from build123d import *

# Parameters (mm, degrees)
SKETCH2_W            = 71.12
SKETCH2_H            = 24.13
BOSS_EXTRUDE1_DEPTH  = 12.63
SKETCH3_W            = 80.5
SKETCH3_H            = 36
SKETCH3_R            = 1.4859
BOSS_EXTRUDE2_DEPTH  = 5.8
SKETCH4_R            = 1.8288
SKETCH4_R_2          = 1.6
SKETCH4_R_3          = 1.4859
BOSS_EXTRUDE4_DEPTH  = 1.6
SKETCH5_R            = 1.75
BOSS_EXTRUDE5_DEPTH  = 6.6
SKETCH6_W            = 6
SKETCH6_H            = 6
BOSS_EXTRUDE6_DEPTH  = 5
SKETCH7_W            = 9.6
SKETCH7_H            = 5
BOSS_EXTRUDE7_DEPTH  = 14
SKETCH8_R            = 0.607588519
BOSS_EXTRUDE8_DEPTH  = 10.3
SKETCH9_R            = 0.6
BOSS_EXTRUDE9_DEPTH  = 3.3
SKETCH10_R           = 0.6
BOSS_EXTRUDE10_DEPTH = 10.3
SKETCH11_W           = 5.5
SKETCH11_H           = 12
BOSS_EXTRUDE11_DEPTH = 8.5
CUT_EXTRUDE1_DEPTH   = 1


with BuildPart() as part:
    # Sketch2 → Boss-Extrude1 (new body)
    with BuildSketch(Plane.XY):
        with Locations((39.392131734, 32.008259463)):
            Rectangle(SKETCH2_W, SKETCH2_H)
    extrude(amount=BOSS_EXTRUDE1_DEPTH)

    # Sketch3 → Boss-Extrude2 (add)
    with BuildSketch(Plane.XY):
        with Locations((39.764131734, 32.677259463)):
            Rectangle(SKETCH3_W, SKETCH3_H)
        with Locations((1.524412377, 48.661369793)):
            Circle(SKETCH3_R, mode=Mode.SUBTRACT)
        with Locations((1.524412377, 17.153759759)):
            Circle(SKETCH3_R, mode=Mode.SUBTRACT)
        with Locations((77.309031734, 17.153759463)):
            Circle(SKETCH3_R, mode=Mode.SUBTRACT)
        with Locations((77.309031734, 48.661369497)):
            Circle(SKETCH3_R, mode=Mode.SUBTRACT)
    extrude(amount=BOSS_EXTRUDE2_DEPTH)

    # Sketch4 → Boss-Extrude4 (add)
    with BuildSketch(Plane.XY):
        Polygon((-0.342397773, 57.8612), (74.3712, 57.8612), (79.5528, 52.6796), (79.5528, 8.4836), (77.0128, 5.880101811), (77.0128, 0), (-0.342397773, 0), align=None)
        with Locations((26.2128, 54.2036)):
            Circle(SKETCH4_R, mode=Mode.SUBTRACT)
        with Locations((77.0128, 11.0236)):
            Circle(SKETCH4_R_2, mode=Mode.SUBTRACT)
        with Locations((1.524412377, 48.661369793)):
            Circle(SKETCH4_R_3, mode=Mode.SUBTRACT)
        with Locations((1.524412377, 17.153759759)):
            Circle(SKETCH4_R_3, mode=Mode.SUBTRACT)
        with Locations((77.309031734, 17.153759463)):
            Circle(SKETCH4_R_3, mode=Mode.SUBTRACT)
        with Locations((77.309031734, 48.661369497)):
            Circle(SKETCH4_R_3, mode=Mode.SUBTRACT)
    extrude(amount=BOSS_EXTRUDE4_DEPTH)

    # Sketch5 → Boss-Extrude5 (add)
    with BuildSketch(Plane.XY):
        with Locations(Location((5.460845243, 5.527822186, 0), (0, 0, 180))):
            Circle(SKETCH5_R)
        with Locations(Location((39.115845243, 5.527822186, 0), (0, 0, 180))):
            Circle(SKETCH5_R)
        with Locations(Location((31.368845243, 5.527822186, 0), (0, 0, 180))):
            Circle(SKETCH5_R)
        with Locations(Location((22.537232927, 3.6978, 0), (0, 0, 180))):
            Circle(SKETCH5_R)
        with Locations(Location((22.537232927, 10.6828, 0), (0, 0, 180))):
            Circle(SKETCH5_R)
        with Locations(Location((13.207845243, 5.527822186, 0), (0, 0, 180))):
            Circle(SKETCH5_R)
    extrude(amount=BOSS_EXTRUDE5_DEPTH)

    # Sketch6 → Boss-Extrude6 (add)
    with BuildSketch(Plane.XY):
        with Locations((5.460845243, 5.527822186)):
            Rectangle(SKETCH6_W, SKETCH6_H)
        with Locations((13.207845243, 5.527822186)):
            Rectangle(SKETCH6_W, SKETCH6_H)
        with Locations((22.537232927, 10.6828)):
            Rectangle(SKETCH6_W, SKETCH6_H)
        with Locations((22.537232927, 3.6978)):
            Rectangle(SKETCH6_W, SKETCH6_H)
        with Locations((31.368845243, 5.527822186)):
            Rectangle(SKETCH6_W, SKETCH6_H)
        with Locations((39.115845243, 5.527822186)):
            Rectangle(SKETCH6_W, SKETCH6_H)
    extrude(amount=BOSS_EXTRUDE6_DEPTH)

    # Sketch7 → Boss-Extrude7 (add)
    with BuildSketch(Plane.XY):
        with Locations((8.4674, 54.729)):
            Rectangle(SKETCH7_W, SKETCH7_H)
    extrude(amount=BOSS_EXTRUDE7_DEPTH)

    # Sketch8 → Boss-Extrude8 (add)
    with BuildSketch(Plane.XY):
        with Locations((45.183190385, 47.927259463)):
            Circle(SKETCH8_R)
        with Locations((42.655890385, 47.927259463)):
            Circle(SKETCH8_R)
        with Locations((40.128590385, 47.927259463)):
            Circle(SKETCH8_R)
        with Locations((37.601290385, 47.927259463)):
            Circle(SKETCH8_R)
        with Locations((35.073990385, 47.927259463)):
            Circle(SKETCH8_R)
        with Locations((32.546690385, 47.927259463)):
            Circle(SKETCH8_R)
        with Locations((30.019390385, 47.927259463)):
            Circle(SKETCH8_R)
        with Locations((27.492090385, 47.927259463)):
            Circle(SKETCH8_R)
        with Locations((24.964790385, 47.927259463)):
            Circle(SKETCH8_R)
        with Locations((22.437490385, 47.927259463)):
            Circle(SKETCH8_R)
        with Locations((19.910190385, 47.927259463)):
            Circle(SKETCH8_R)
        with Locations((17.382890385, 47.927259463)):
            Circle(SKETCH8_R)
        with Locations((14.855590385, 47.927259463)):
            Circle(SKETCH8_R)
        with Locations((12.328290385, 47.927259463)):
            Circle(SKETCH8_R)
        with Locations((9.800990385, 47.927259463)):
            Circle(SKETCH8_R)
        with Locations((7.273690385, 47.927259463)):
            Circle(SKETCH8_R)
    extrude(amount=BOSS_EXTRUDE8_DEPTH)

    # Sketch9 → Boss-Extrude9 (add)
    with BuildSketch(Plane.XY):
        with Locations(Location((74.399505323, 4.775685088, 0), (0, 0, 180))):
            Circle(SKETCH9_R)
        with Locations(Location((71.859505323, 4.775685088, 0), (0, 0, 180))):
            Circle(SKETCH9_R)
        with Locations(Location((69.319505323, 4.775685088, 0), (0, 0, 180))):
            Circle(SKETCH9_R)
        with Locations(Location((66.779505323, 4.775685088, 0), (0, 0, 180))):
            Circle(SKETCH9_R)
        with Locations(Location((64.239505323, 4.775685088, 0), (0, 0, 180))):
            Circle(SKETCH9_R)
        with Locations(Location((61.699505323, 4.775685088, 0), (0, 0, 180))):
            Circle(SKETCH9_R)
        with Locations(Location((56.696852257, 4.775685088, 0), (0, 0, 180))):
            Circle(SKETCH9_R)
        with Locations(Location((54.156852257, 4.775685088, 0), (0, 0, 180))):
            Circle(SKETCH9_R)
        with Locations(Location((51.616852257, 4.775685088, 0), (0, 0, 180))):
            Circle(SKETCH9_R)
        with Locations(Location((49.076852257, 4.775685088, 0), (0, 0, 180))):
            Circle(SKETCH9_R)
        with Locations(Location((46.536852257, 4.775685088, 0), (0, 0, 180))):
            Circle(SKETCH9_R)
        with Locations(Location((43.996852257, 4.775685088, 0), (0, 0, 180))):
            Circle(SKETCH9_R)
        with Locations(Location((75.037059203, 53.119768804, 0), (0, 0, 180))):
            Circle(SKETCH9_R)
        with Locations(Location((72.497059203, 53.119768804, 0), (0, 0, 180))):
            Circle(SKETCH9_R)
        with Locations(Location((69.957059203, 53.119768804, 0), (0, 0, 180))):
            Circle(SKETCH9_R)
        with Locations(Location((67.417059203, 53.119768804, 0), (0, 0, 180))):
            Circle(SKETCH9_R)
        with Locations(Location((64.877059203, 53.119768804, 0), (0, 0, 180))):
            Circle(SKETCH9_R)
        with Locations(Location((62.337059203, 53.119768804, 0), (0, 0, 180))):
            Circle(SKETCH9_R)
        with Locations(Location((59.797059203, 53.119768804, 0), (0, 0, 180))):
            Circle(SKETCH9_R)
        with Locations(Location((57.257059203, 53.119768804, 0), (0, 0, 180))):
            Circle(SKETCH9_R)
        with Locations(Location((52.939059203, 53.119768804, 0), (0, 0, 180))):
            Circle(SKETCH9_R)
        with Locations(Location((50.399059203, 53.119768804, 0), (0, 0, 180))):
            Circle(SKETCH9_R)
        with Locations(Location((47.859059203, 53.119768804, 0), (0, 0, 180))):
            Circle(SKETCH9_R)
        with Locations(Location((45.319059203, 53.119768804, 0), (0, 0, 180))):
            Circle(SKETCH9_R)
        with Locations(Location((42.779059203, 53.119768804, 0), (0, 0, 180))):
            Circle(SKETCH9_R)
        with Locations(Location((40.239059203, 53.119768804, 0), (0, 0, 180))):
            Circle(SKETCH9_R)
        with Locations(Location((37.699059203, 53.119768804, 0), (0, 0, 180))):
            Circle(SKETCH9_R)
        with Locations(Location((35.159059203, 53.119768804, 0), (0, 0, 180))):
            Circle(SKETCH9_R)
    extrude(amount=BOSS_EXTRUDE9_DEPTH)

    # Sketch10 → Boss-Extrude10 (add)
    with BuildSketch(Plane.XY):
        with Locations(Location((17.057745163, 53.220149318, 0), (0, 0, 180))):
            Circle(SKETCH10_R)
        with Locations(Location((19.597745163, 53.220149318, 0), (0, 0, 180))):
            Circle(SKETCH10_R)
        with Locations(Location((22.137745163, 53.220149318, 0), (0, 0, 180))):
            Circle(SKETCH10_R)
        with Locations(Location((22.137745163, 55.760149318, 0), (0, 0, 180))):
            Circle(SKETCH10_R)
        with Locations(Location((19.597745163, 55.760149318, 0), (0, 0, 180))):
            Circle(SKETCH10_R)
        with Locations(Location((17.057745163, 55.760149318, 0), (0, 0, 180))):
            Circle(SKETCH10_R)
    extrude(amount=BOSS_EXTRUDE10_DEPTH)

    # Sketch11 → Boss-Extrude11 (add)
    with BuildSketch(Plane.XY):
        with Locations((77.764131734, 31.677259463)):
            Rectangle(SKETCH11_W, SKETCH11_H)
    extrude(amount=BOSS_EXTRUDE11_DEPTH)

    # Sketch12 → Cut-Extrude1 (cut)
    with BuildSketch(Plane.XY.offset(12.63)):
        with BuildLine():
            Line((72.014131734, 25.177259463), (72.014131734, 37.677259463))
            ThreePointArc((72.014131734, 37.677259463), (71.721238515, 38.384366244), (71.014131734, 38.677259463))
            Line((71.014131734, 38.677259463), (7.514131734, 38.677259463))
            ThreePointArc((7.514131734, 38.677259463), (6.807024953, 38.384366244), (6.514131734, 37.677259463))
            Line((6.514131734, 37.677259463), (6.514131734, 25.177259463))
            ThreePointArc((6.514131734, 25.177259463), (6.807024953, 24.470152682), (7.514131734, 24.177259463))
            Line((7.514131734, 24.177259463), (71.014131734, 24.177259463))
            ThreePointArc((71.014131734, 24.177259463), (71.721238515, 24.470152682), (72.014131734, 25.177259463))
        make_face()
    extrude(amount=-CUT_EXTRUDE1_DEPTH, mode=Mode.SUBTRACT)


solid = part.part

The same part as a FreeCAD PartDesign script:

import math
import FreeCAD as App
import Part
import Sketcher
Q = App.Units.Quantity


def add_polygon(sketch, points):
    """Adds a closed chain of lines whose ends are joined by coincident constraints."""
    first, n = sketch.GeometryCount, len(points)
    for a, b in zip(points, points[1:] + points[:1]):
        sketch.addGeometry(Part.LineSegment(App.Vector(*a, 0), App.Vector(*b, 0)), False)
    for i in range(n):
        sketch.addConstraint(Sketcher.Constraint("Coincident", first + i, 2, first + (i + 1) % n, 1))

doc = App.newDocument("Part")
body = doc.addObject("PartDesign::Body", "Body")

sketch1 = doc.addObject("Sketcher::SketchObject", "Sketch")
body.addObject(sketch1)
sketch1.AttachmentSupport = (doc.XY_Plane, [""])
sketch1.MapMode = "FlatFace"
add_polygon(sketch1, [(4, 44), (4, 20), (75, 20), (75, 44)])
sketch1.addConstraint(Sketcher.Constraint("Vertical", 0))
sketch1.addConstraint(Sketcher.Constraint("Horizontal", 1))
sketch1.addConstraint(Sketcher.Constraint("Vertical", 2))
sketch1.addConstraint(Sketcher.Constraint("Horizontal", 3))
sketch1.addConstraint(Sketcher.Constraint("DistanceX", 1, 1, 1, 2, 71.12))
sketch1.addConstraint(Sketcher.Constraint("DistanceY", 0, 2, 0, 1, 24.13))
sketch1.addConstraint(Sketcher.Constraint("DistanceX", -1, 1, 0, 2, 3.832132))
sketch1.addConstraint(Sketcher.Constraint("DistanceY", -1, 1, 0, 2, 19.943259))
pad1 = doc.addObject("PartDesign::Pad", "Pad")
body.addObject(pad1)
pad1.Profile = sketch1
pad1.Length = 12.63

sketch2 = doc.addObject("Sketcher::SketchObject", "Sketch001")
body.addObject(sketch2)
sketch2.AttachmentSupport = (doc.XY_Plane, [""])
sketch2.MapMode = "FlatFace"
add_polygon(sketch2, [(-0.5, 50.7), (-0.5, 14.7), (80, 14.7), (80, 50.7)])
sketch2.addGeometry(Part.Circle(App.Vector(1.5, 17.2, 0), App.Vector(0, 0, 1), 1.5), False)
sketch2.addGeometry(Part.Circle(App.Vector(77.3, 17.2, 0), App.Vector(0, 0, 1), 1.5), False)
sketch2.addGeometry(Part.Circle(App.Vector(1.5, 48.7, 0), App.Vector(0, 0, 1), 1.5), False)
sketch2.addGeometry(Part.Circle(App.Vector(77.3, 48.7, 0), App.Vector(0, 0, 1), 1.5), False)
sketch2.addConstraint(Sketcher.Constraint("Vertical", 0))
sketch2.addConstraint(Sketcher.Constraint("Horizontal", 1))
sketch2.addConstraint(Sketcher.Constraint("Vertical", 2))
sketch2.addConstraint(Sketcher.Constraint("Horizontal", 3))
sketch2.addConstraint(Sketcher.Constraint("Equal", 4, 5))
sketch2.addConstraint(Sketcher.Constraint("Equal", 5, 6))
sketch2.addConstraint(Sketcher.Constraint("Equal", 6, 7))
sketch2.addConstraint(Sketcher.Constraint("Horizontal", 4, 3, 5, 3))
sketch2.addConstraint(Sketcher.Constraint("Horizontal", 6, 3, 7, 3))
sketch2.addConstraint(Sketcher.Constraint("Vertical", 4, 3, 6, 3))
sketch2.addConstraint(Sketcher.Constraint("Vertical", 5, 3, 7, 3))
sketch2.addConstraint(Sketcher.Constraint("DistanceY", 0, 2, 0, 1, 36.0))
sketch2.addConstraint(Sketcher.Constraint("DistanceX", 1, 1, 1, 2, 80.5))
sketch2.addConstraint(Sketcher.Constraint("Diameter", 4, 2.9718))
sketch2.addConstraint(Sketcher.Constraint("DistanceY", 0, 2, 4, 3, 2.4765))
sketch2.addConstraint(Sketcher.Constraint("DistanceX", 0, 2, 5, 3, 77.7949))
sketch2.addConstraint(Sketcher.Constraint("DistanceY", -1, 1, 4, 3, 17.15376))
sketch2.addConstraint(Sketcher.Constraint("DistanceX", -1, 1, 5, 3, 77.309032))
sketch2.addConstraint(Sketcher.Constraint("DistanceY", -1, 1, 6, 3, 48.66137))
sketch2.addConstraint(Sketcher.Constraint("DistanceX", 4, 3, 5, 3, 75.784619))
pad2 = doc.addObject("PartDesign::Pad", "Pad001")
body.addObject(pad2)
pad2.Profile = sketch2
pad2.Length = 5.8

sketch3 = doc.addObject("Sketcher::SketchObject", "Sketch002")
body.addObject(sketch3)
sketch3.AttachmentSupport = (doc.XY_Plane, [""])
sketch3.MapMode = "FlatFace"
add_polygon(sketch3, [(74.4, 57.9), (-0.3, 57.9), (-0.3, 0), (77, 0), (77, 5.9), (79.6, 8.5), (79.6, 52.7)])
sketch3.addGeometry(Part.Circle(App.Vector(77, 11, 0), App.Vector(0, 0, 1), 1.6), False)
sketch3.addGeometry(Part.Circle(App.Vector(77.3, 17.2, 0), App.Vector(0, 0, 1), 1.5), False)
sketch3.addGeometry(Part.Circle(App.Vector(1.5, 17.2, 0), App.Vector(0, 0, 1), 1.5), False)
sketch3.addGeometry(Part.Circle(App.Vector(77.3, 48.7, 0), App.Vector(0, 0, 1), 1.5), False)
sketch3.addGeometry(Part.Circle(App.Vector(26.2, 54.2, 0), App.Vector(0, 0, 1), 1.8), False)
sketch3.addGeometry(Part.Circle(App.Vector(1.5, 48.7, 0), App.Vector(0, 0, 1), 1.5), False)
sketch3.addConstraint(Sketcher.Constraint("Horizontal", 0))
sketch3.addConstraint(Sketcher.Constraint("Vertical", 1))
sketch3.addConstraint(Sketcher.Constraint("Horizontal", 2))
sketch3.addConstraint(Sketcher.Constraint("Vertical", 3))
sketch3.addConstraint(Sketcher.Constraint("Vertical", 5))
sketch3.addConstraint(Sketcher.Constraint("Equal", 8, 9))
sketch3.addConstraint(Sketcher.Constraint("Equal", 9, 10))
sketch3.addConstraint(Sketcher.Constraint("Equal", 10, 12))
sketch3.addConstraint(Sketcher.Constraint("PointOnObject", 1, 2, -1))
sketch3.addConstraint(Sketcher.Constraint("Horizontal", 8, 3, 9, 3))
sketch3.addConstraint(Sketcher.Constraint("Horizontal", 10, 3, 12, 3))
sketch3.addConstraint(Sketcher.Constraint("Vertical", 8, 3, 10, 3))
sketch3.addConstraint(Sketcher.Constraint("Vertical", 9, 3, 12, 3))
sketch3.addConstraint(Sketcher.Constraint("Vertical", 7, 3, 2, 2))
sketch3.addConstraint(Sketcher.Constraint("Diameter", 7, 3.2))
sketch3.addConstraint(Sketcher.Constraint("Angle", 6, Q("135 deg")))
sketch3.addConstraint(Sketcher.Constraint("Diameter", 8, 2.9718))
sketch3.addConstraint(Sketcher.Constraint("Diameter", 11, 3.6576))
sketch3.addConstraint(Sketcher.Constraint("DistanceX", 11, 3, 7, 3, 50.8))
sketch3.addConstraint(Sketcher.Constraint("DistanceY", 5, 1, 5, 2, 44.196))
sketch3.addConstraint(Sketcher.Constraint("DistanceY", 7, 3, 11, 3, 43.18))
sketch3.addConstraint(Sketcher.Constraint("DistanceX", 7, 3, 4, 2, 2.54))
sketch3.addConstraint(Sketcher.Constraint("DistanceY", 4, 2, 7, 3, 2.54))
sketch3.addConstraint(Sketcher.Constraint("DistanceY", 1, 2, 1, 1, 57.8612))
sketch3.addConstraint(Sketcher.Constraint("DistanceY", 3, 1, 3, 2, 5.880102))
sketch3.addConstraint(Sketcher.Constraint("DistanceX", -1, 1, 7, 3, 77.0128))
sketch3.addConstraint(Sketcher.Constraint("DistanceY", -1, 1, 7, 3, 11.0236))
sketch3.addConstraint(Sketcher.Constraint("DistanceX", 0, 2, 0, 1, 74.713598))
sketch3.addConstraint(Sketcher.Constraint("DistanceX", -1, 1, 8, 3, 77.309032))
sketch3.addConstraint(Sketcher.Constraint("DistanceY", -1, 1, 8, 3, 17.153759))
sketch3.addConstraint(Sketcher.Constraint("DistanceY", -1, 1, 10, 3, 48.661369))
sketch3.addConstraint(Sketcher.Constraint("DistanceX", 9, 3, 8, 3, 75.784619))
pad3 = doc.addObject("PartDesign::Pad", "Pad002")
body.addObject(pad3)
pad3.Profile = sketch3
pad3.Length = 1.6

sketch4 = doc.addObject("Sketcher::SketchObject", "Sketch003")
body.addObject(sketch4)
sketch4.AttachmentSupport = (doc.XY_Plane, [""])
sketch4.MapMode = "FlatFace"
sketch4.addGeometry(Part.Circle(App.Vector(5.5, 5.5, 0), App.Vector(0, 0, 1), 1.8), False)
sketch4.addGeometry(Part.Circle(App.Vector(39.1, 5.5, 0), App.Vector(0, 0, 1), 1.8), False)
sketch4.addGeometry(Part.Circle(App.Vector(31.4, 5.5, 0), App.Vector(0, 0, 1), 1.8), False)
sketch4.addGeometry(Part.Circle(App.Vector(22.5, 3.7, 0), App.Vector(0, 0, 1), 1.8), False)
sketch4.addGeometry(Part.Circle(App.Vector(22.5, 10.7, 0), App.Vector(0, 0, 1), 1.8), False)
sketch4.addGeometry(Part.Circle(App.Vector(13.2, 5.5, 0), App.Vector(0, 0, 1), 1.8), False)
sketch4.addConstraint(Sketcher.Constraint("Equal", 0, 1))
sketch4.addConstraint(Sketcher.Constraint("Equal", 1, 2))
sketch4.addConstraint(Sketcher.Constraint("Equal", 2, 3))
sketch4.addConstraint(Sketcher.Constraint("Equal", 3, 4))
sketch4.addConstraint(Sketcher.Constraint("Equal", 4, 5))
sketch4.addConstraint(Sketcher.Constraint("Horizontal", 0, 3, 1, 3))
sketch4.addConstraint(Sketcher.Constraint("Horizontal", 1, 3, 2, 3))
sketch4.addConstraint(Sketcher.Constraint("Horizontal", 2, 3, 5, 3))
sketch4.addConstraint(Sketcher.Constraint("Vertical", 3, 3, 4, 3))
sketch4.addConstraint(Sketcher.Constraint("Diameter", 0, 3.5))
sketch4.addConstraint(Sketcher.Constraint("DistanceX", 0, 3, 1, 3, 33.655))
sketch4.addConstraint(Sketcher.Constraint("DistanceX", 2, 3, 1, 3, 7.747))
sketch4.addConstraint(Sketcher.Constraint("DistanceY", 3, 3, 4, 3, 6.985))
sketch4.addConstraint(Sketcher.Constraint("DistanceX", 0, 3, 5, 3, 7.747))
sketch4.addConstraint(Sketcher.Constraint("DistanceY", -1, 1, 3, 3, 3.6978))
sketch4.addConstraint(Sketcher.Constraint("DistanceX", -1, 1, 0, 3, 5.460845))
sketch4.addConstraint(Sketcher.Constraint("DistanceY", -1, 1, 0, 3, 5.527822))
sketch4.addConstraint(Sketcher.Constraint("DistanceX", -1, 1, 3, 3, 22.537233))
pad4 = doc.addObject("PartDesign::Pad", "Pad003")
body.addObject(pad4)
pad4.Profile = sketch4
pad4.Length = 6.6

sketch5 = doc.addObject("Sketcher::SketchObject", "Sketch004")
body.addObject(sketch5)
sketch5.AttachmentSupport = (doc.XY_Plane, [""])
sketch5.MapMode = "FlatFace"
add_polygon(sketch5, [(2, 9), (2, 3), (8, 3), (8, 9)])
add_polygon(sketch5, [(10, 9), (10, 3), (16, 3), (16, 9)])
add_polygon(sketch5, [(20, 14), (20, 8), (26, 8), (26, 14)])
add_polygon(sketch5, [(20, 7), (20, 1), (26, 1), (26, 7)])
add_polygon(sketch5, [(28, 9), (28, 3), (34, 3), (34, 9)])
add_polygon(sketch5, [(36, 9), (36, 3), (42, 3), (42, 9)])
sketch5.addConstraint(Sketcher.Constraint("Vertical", 0))
sketch5.addConstraint(Sketcher.Constraint("Horizontal", 1))
sketch5.addConstraint(Sketcher.Constraint("Vertical", 2))
sketch5.addConstraint(Sketcher.Constraint("Horizontal", 3))
sketch5.addConstraint(Sketcher.Constraint("Vertical", 4))
sketch5.addConstraint(Sketcher.Constraint("Horizontal", 5))
sketch5.addConstraint(Sketcher.Constraint("Vertical", 6))
sketch5.addConstraint(Sketcher.Constraint("Horizontal", 7))
sketch5.addConstraint(Sketcher.Constraint("Vertical", 8))
sketch5.addConstraint(Sketcher.Constraint("Horizontal", 9))
sketch5.addConstraint(Sketcher.Constraint("Vertical", 10))
sketch5.addConstraint(Sketcher.Constraint("Horizontal", 11))
sketch5.addConstraint(Sketcher.Constraint("Vertical", 12))
sketch5.addConstraint(Sketcher.Constraint("Horizontal", 13))
sketch5.addConstraint(Sketcher.Constraint("Vertical", 14))
sketch5.addConstraint(Sketcher.Constraint("Horizontal", 15))
sketch5.addConstraint(Sketcher.Constraint("Vertical", 16))
sketch5.addConstraint(Sketcher.Constraint("Horizontal", 17))
sketch5.addConstraint(Sketcher.Constraint("Vertical", 18))
sketch5.addConstraint(Sketcher.Constraint("Horizontal", 19))
sketch5.addConstraint(Sketcher.Constraint("Vertical", 20))
sketch5.addConstraint(Sketcher.Constraint("Horizontal", 21))
sketch5.addConstraint(Sketcher.Constraint("Vertical", 22))
sketch5.addConstraint(Sketcher.Constraint("Horizontal", 23))
sketch5.addConstraint(Sketcher.Constraint("Horizontal", 1, 2, 4, 2))
sketch5.addConstraint(Sketcher.Constraint("Horizontal", 3, 2, 6, 2))
sketch5.addConstraint(Sketcher.Constraint("Horizontal", 5, 2, 16, 2))
sketch5.addConstraint(Sketcher.Constraint("Horizontal", 7, 2, 18, 2))
sketch5.addConstraint(Sketcher.Constraint("Horizontal", 17, 2, 20, 2))
sketch5.addConstraint(Sketcher.Constraint("Horizontal", 19, 2, 22, 2))
sketch5.addConstraint(Sketcher.Constraint("Vertical", 11, 2, 12, 2))
sketch5.addConstraint(Sketcher.Constraint("Vertical", 10, 2, 13, 2))
sketch5.addConstraint(Sketcher.Constraint("Equal", 3, 5))
sketch5.addConstraint(Sketcher.Constraint("Equal", 7, 9))
sketch5.addConstraint(Sketcher.Constraint("Equal", 15, 17))
sketch5.addConstraint(Sketcher.Constraint("Equal", 19, 21))
sketch5.addConstraint(Sketcher.Constraint("Equal", 23, 0))
sketch5.addConstraint(Sketcher.Constraint("Equal", 6, 8))
sketch5.addConstraint(Sketcher.Constraint("Equal", 10, 12))
sketch5.addConstraint(Sketcher.Constraint("DistanceX", 1, 1, 1, 2, 6.0))
sketch5.addConstraint(Sketcher.Constraint("DistanceX", 1, 2, 4, 2, 1.747))
sketch5.addConstraint(Sketcher.Constraint("DistanceY", 12, 2, 8, 2, 6.985))
sketch5.addConstraint(Sketcher.Constraint("DistanceX", 17, 2, 20, 2, 1.747))
sketch5.addConstraint(Sketcher.Constraint("DistanceY", -1, 1, 8, 2, 7.6828))
sketch5.addConstraint(Sketcher.Constraint("DistanceX", -1, 1, 0, 2, 2.460845))
sketch5.addConstraint(Sketcher.Constraint("DistanceY", -1, 1, 0, 2, 2.527822))
sketch5.addConstraint(Sketcher.Constraint("DistanceX", -1, 1, 8, 2, 19.537233))
sketch5.addConstraint(Sketcher.Constraint("DistanceX", -1, 1, 16, 2, 28.368845))
pad5 = doc.addObject("PartDesign::Pad", "Pad004")
body.addObject(pad5)
pad5.Profile = sketch5
pad5.Length = 5

sketch6 = doc.addObject("Sketcher::SketchObject", "Sketch005")
body.addObject(sketch6)
sketch6.AttachmentSupport = (doc.XY_Plane, [""])
sketch6.MapMode = "FlatFace"
add_polygon(sketch6, [(4, 57), (4, 52), (13, 52), (13, 57)])
sketch6.addConstraint(Sketcher.Constraint("Vertical", 0))
sketch6.addConstraint(Sketcher.Constraint("Horizontal", 1))
sketch6.addConstraint(Sketcher.Constraint("Vertical", 2))
sketch6.addConstraint(Sketcher.Constraint("Horizontal", 3))
sketch6.addConstraint(Sketcher.Constraint("DistanceY", 0, 2, 0, 1, 5.0))
sketch6.addConstraint(Sketcher.Constraint("DistanceX", 1, 1, 1, 2, 9.6))
sketch6.addConstraint(Sketcher.Constraint("DistanceY", -1, 1, 0, 2, 52.229))
sketch6.addConstraint(Sketcher.Constraint("DistanceX", -1, 1, 0, 2, 3.6674))
pad6 = doc.addObject("PartDesign::Pad", "Pad005")
body.addObject(pad6)
pad6.Profile = sketch6
pad6.Length = 14

sketch7 = doc.addObject("Sketcher::SketchObject", "Sketch006")
body.addObject(sketch7)
sketch7.AttachmentSupport = (doc.XY_Plane, [""])
sketch7.MapMode = "FlatFace"
sketch7.addGeometry(Part.Circle(App.Vector(45.2, 47.9, 0), App.Vector(0, 0, 1), 0.6), False)
sketch7.addGeometry(Part.Circle(App.Vector(42.7, 47.9, 0), App.Vector(0, 0, 1), 0.6), False)
sketch7.addGeometry(Part.Circle(App.Vector(40.1, 47.9, 0), App.Vector(0, 0, 1), 0.6), False)
sketch7.addGeometry(Part.Circle(App.Vector(37.6, 47.9, 0), App.Vector(0, 0, 1), 0.6), False)
sketch7.addGeometry(Part.Circle(App.Vector(35.1, 47.9, 0), App.Vector(0, 0, 1), 0.6), False)
sketch7.addGeometry(Part.Circle(App.Vector(32.5, 47.9, 0), App.Vector(0, 0, 1), 0.6), False)
sketch7.addGeometry(Part.Circle(App.Vector(30, 47.9, 0), App.Vector(0, 0, 1), 0.6), False)
sketch7.addGeometry(Part.Circle(App.Vector(27.5, 47.9, 0), App.Vector(0, 0, 1), 0.6), False)
sketch7.addGeometry(Part.Circle(App.Vector(25, 47.9, 0), App.Vector(0, 0, 1), 0.6), False)
sketch7.addGeometry(Part.Circle(App.Vector(22.4, 47.9, 0), App.Vector(0, 0, 1), 0.6), False)
sketch7.addGeometry(Part.Circle(App.Vector(19.9, 47.9, 0), App.Vector(0, 0, 1), 0.6), False)
sketch7.addGeometry(Part.Circle(App.Vector(17.4, 47.9, 0), App.Vector(0, 0, 1), 0.6), False)
sketch7.addGeometry(Part.Circle(App.Vector(14.9, 47.9, 0), App.Vector(0, 0, 1), 0.6), False)
sketch7.addGeometry(Part.Circle(App.Vector(12.3, 47.9, 0), App.Vector(0, 0, 1), 0.6), False)
sketch7.addGeometry(Part.Circle(App.Vector(9.8, 47.9, 0), App.Vector(0, 0, 1), 0.6), False)
sketch7.addGeometry(Part.Circle(App.Vector(7.3, 47.9, 0), App.Vector(0, 0, 1), 0.6), False)
sketch7.addConstraint(Sketcher.Constraint("Equal", 0, 1))
sketch7.addConstraint(Sketcher.Constraint("Equal", 1, 2))
sketch7.addConstraint(Sketcher.Constraint("Equal", 2, 3))
sketch7.addConstraint(Sketcher.Constraint("Equal", 3, 4))
sketch7.addConstraint(Sketcher.Constraint("Equal", 4, 5))
sketch7.addConstraint(Sketcher.Constraint("Equal", 5, 6))
sketch7.addConstraint(Sketcher.Constraint("Equal", 6, 7))
sketch7.addConstraint(Sketcher.Constraint("Equal", 7, 8))
sketch7.addConstraint(Sketcher.Constraint("Equal", 8, 9))
sketch7.addConstraint(Sketcher.Constraint("Equal", 9, 10))
sketch7.addConstraint(Sketcher.Constraint("Equal", 10, 11))
sketch7.addConstraint(Sketcher.Constraint("Equal", 11, 12))
sketch7.addConstraint(Sketcher.Constraint("Equal", 12, 13))
sketch7.addConstraint(Sketcher.Constraint("Equal", 13, 14))
sketch7.addConstraint(Sketcher.Constraint("Equal", 14, 15))
sketch7.addConstraint(Sketcher.Constraint("Horizontal", 0, 3, 1, 3))
sketch7.addConstraint(Sketcher.Constraint("Horizontal", 1, 3, 2, 3))
sketch7.addConstraint(Sketcher.Constraint("Horizontal", 2, 3, 3, 3))
sketch7.addConstraint(Sketcher.Constraint("Horizontal", 3, 3, 4, 3))
sketch7.addConstraint(Sketcher.Constraint("Horizontal", 4, 3, 5, 3))
sketch7.addConstraint(Sketcher.Constraint("Horizontal", 5, 3, 6, 3))
sketch7.addConstraint(Sketcher.Constraint("Horizontal", 6, 3, 7, 3))
sketch7.addConstraint(Sketcher.Constraint("Horizontal", 7, 3, 8, 3))
sketch7.addConstraint(Sketcher.Constraint("Horizontal", 8, 3, 9, 3))
sketch7.addConstraint(Sketcher.Constraint("Horizontal", 9, 3, 10, 3))
sketch7.addConstraint(Sketcher.Constraint("Horizontal", 10, 3, 11, 3))
sketch7.addConstraint(Sketcher.Constraint("Horizontal", 11, 3, 12, 3))
sketch7.addConstraint(Sketcher.Constraint("Horizontal", 12, 3, 13, 3))
sketch7.addConstraint(Sketcher.Constraint("Horizontal", 13, 3, 14, 3))
sketch7.addConstraint(Sketcher.Constraint("Horizontal", 14, 3, 15, 3))
sketch7.addConstraint(Sketcher.Constraint("Diameter", 0, 1.215177))
sketch7.addConstraint(Sketcher.Constraint("DistanceX", 1, 3, 0, 3, 2.5273))
sketch7.addConstraint(Sketcher.Constraint("DistanceX", 2, 3, 1, 3, 2.5273))
sketch7.addConstraint(Sketcher.Constraint("DistanceX", 3, 3, 2, 3, 2.5273))
sketch7.addConstraint(Sketcher.Constraint("DistanceX", 4, 3, 3, 3, 2.5273))
sketch7.addConstraint(Sketcher.Constraint("DistanceX", 5, 3, 4, 3, 2.5273))
sketch7.addConstraint(Sketcher.Constraint("DistanceX", 6, 3, 5, 3, 2.5273))
sketch7.addConstraint(Sketcher.Constraint("DistanceX", 7, 3, 6, 3, 2.5273))
sketch7.addConstraint(Sketcher.Constraint("DistanceX", 8, 3, 7, 3, 2.5273))
sketch7.addConstraint(Sketcher.Constraint("DistanceX", 9, 3, 8, 3, 2.5273))
sketch7.addConstraint(Sketcher.Constraint("DistanceX", 10, 3, 9, 3, 2.5273))
sketch7.addConstraint(Sketcher.Constraint("DistanceX", 11, 3, 10, 3, 2.5273))
sketch7.addConstraint(Sketcher.Constraint("DistanceX", 12, 3, 11, 3, 2.5273))
sketch7.addConstraint(Sketcher.Constraint("DistanceX", 13, 3, 12, 3, 2.5273))
sketch7.addConstraint(Sketcher.Constraint("DistanceX", 14, 3, 13, 3, 2.5273))
sketch7.addConstraint(Sketcher.Constraint("DistanceX", 15, 3, 14, 3, 2.5273))
sketch7.addConstraint(Sketcher.Constraint("DistanceX", -1, 1, 0, 3, 45.18319))
sketch7.addConstraint(Sketcher.Constraint("DistanceY", -1, 1, 0, 3, 47.927259))
pad7 = doc.addObject("PartDesign::Pad", "Pad006")
body.addObject(pad7)
pad7.Profile = sketch7
pad7.Length = 10.3

sketch8 = doc.addObject("Sketcher::SketchObject", "Sketch007")
body.addObject(sketch8)
sketch8.AttachmentSupport = (doc.XY_Plane, [""])
sketch8.MapMode = "FlatFace"
sketch8.addGeometry(Part.Circle(App.Vector(74.4, 4.8, 0), App.Vector(0, 0, 1), 0.6), False)
sketch8.addGeometry(Part.Circle(App.Vector(71.9, 4.8, 0), App.Vector(0, 0, 1), 0.6), False)
sketch8.addGeometry(Part.Circle(App.Vector(69.3, 4.8, 0), App.Vector(0, 0, 1), 0.6), False)
sketch8.addGeometry(Part.Circle(App.Vector(66.8, 4.8, 0), App.Vector(0, 0, 1), 0.6), False)
sketch8.addGeometry(Part.Circle(App.Vector(64.2, 4.8, 0), App.Vector(0, 0, 1), 0.6), False)
sketch8.addGeometry(Part.Circle(App.Vector(61.7, 4.8, 0), App.Vector(0, 0, 1), 0.6), False)
sketch8.addGeometry(Part.Circle(App.Vector(56.7, 4.8, 0), App.Vector(0, 0, 1), 0.6), False)
sketch8.addGeometry(Part.Circle(App.Vector(54.2, 4.8, 0), App.Vector(0, 0, 1), 0.6), False)
sketch8.addGeometry(Part.Circle(App.Vector(51.6, 4.8, 0), App.Vector(0, 0, 1), 0.6), False)
sketch8.addGeometry(Part.Circle(App.Vector(49.1, 4.8, 0), App.Vector(0, 0, 1), 0.6), False)
sketch8.addGeometry(Part.Circle(App.Vector(46.5, 4.8, 0), App.Vector(0, 0, 1), 0.6), False)
sketch8.addGeometry(Part.Circle(App.Vector(44, 4.8, 0), App.Vector(0, 0, 1), 0.6), False)
sketch8.addGeometry(Part.Circle(App.Vector(75, 53.1, 0), App.Vector(0, 0, 1), 0.6), False)
sketch8.addGeometry(Part.Circle(App.Vector(72.5, 53.1, 0), App.Vector(0, 0, 1), 0.6), False)
sketch8.addGeometry(Part.Circle(App.Vector(70, 53.1, 0), App.Vector(0, 0, 1), 0.6), False)
sketch8.addGeometry(Part.Circle(App.Vector(67.4, 53.1, 0), App.Vector(0, 0, 1), 0.6), False)
sketch8.addGeometry(Part.Circle(App.Vector(64.9, 53.1, 0), App.Vector(0, 0, 1), 0.6), False)
sketch8.addGeometry(Part.Circle(App.Vector(62.3, 53.1, 0), App.Vector(0, 0, 1), 0.6), False)
sketch8.addGeometry(Part.Circle(App.Vector(59.8, 53.1, 0), App.Vector(0, 0, 1), 0.6), False)
sketch8.addGeometry(Part.Circle(App.Vector(57.3, 53.1, 0), App.Vector(0, 0, 1), 0.6), False)
sketch8.addGeometry(Part.Circle(App.Vector(52.9, 53.1, 0), App.Vector(0, 0, 1), 0.6), False)
sketch8.addGeometry(Part.Circle(App.Vector(50.4, 53.1, 0), App.Vector(0, 0, 1), 0.6), False)
sketch8.addGeometry(Part.Circle(App.Vector(47.9, 53.1, 0), App.Vector(0, 0, 1), 0.6), False)
sketch8.addGeometry(Part.Circle(App.Vector(45.3, 53.1, 0), App.Vector(0, 0, 1), 0.6), False)
sketch8.addGeometry(Part.Circle(App.Vector(42.8, 53.1, 0), App.Vector(0, 0, 1), 0.6), False)
sketch8.addGeometry(Part.Circle(App.Vector(40.2, 53.1, 0), App.Vector(0, 0, 1), 0.6), False)
sketch8.addGeometry(Part.Circle(App.Vector(37.7, 53.1, 0), App.Vector(0, 0, 1), 0.6), False)
sketch8.addGeometry(Part.Circle(App.Vector(35.2, 53.1, 0), App.Vector(0, 0, 1), 0.6), False)
sketch8.addConstraint(Sketcher.Constraint("Equal", 0, 1))
sketch8.addConstraint(Sketcher.Constraint("Equal", 1, 2))
sketch8.addConstraint(Sketcher.Constraint("Equal", 2, 3))
sketch8.addConstraint(Sketcher.Constraint("Equal", 3, 4))
sketch8.addConstraint(Sketcher.Constraint("Equal", 4, 5))
sketch8.addConstraint(Sketcher.Constraint("Equal", 5, 6))
sketch8.addConstraint(Sketcher.Constraint("Equal", 6, 7))
sketch8.addConstraint(Sketcher.Constraint("Equal", 7, 8))
sketch8.addConstraint(Sketcher.Constraint("Equal", 8, 9))
sketch8.addConstraint(Sketcher.Constraint("Equal", 9, 10))
sketch8.addConstraint(Sketcher.Constraint("Equal", 10, 11))
sketch8.addConstraint(Sketcher.Constraint("Equal", 11, 12))
sketch8.addConstraint(Sketcher.Constraint("Equal", 12, 13))
sketch8.addConstraint(Sketcher.Constraint("Equal", 13, 14))
sketch8.addConstraint(Sketcher.Constraint("Equal", 14, 15))
sketch8.addConstraint(Sketcher.Constraint("Equal", 15, 16))
sketch8.addConstraint(Sketcher.Constraint("Equal", 16, 17))
sketch8.addConstraint(Sketcher.Constraint("Equal", 17, 18))
sketch8.addConstraint(Sketcher.Constraint("Equal", 18, 19))
sketch8.addConstraint(Sketcher.Constraint("Equal", 19, 20))
sketch8.addConstraint(Sketcher.Constraint("Equal", 20, 21))
sketch8.addConstraint(Sketcher.Constraint("Equal", 21, 22))
sketch8.addConstraint(Sketcher.Constraint("Equal", 22, 23))
sketch8.addConstraint(Sketcher.Constraint("Equal", 23, 24))
sketch8.addConstraint(Sketcher.Constraint("Equal", 24, 25))
sketch8.addConstraint(Sketcher.Constraint("Equal", 25, 26))
sketch8.addConstraint(Sketcher.Constraint("Equal", 26, 27))
sketch8.addConstraint(Sketcher.Constraint("Horizontal", 0, 3, 1, 3))
sketch8.addConstraint(Sketcher.Constraint("Horizontal", 1, 3, 2, 3))
sketch8.addConstraint(Sketcher.Constraint("Horizontal", 2, 3, 3, 3))
sketch8.addConstraint(Sketcher.Constraint("Horizontal", 3, 3, 4, 3))
sketch8.addConstraint(Sketcher.Constraint("Horizontal", 4, 3, 5, 3))
sketch8.addConstraint(Sketcher.Constraint("Horizontal", 5, 3, 6, 3))
sketch8.addConstraint(Sketcher.Constraint("Horizontal", 6, 3, 7, 3))
sketch8.addConstraint(Sketcher.Constraint("Horizontal", 7, 3, 8, 3))
sketch8.addConstraint(Sketcher.Constraint("Horizontal", 8, 3, 9, 3))
sketch8.addConstraint(Sketcher.Constraint("Horizontal", 9, 3, 10, 3))
sketch8.addConstraint(Sketcher.Constraint("Horizontal", 10, 3, 11, 3))
sketch8.addConstraint(Sketcher.Constraint("Horizontal", 12, 3, 13, 3))
sketch8.addConstraint(Sketcher.Constraint("Horizontal", 13, 3, 14, 3))
sketch8.addConstraint(Sketcher.Constraint("Horizontal", 14, 3, 15, 3))
sketch8.addConstraint(Sketcher.Constraint("Horizontal", 15, 3, 16, 3))
sketch8.addConstraint(Sketcher.Constraint("Horizontal", 16, 3, 17, 3))
sketch8.addConstraint(Sketcher.Constraint("Horizontal", 17, 3, 18, 3))
sketch8.addConstraint(Sketcher.Constraint("Horizontal", 18, 3, 19, 3))
sketch8.addConstraint(Sketcher.Constraint("Horizontal", 19, 3, 20, 3))
sketch8.addConstraint(Sketcher.Constraint("Horizontal", 20, 3, 21, 3))
sketch8.addConstraint(Sketcher.Constraint("Horizontal", 21, 3, 22, 3))
sketch8.addConstraint(Sketcher.Constraint("Horizontal", 22, 3, 23, 3))
sketch8.addConstraint(Sketcher.Constraint("Horizontal", 23, 3, 24, 3))
sketch8.addConstraint(Sketcher.Constraint("Horizontal", 24, 3, 25, 3))
sketch8.addConstraint(Sketcher.Constraint("Horizontal", 25, 3, 26, 3))
sketch8.addConstraint(Sketcher.Constraint("Horizontal", 26, 3, 27, 3))
sketch8.addConstraint(Sketcher.Constraint("Diameter", 0, 1.2))
sketch8.addConstraint(Sketcher.Constraint("DistanceX", 5, 3, 0, 3, 12.7))
sketch8.addConstraint(Sketcher.Constraint("DistanceX", 11, 3, 6, 3, 12.7))
sketch8.addConstraint(Sketcher.Constraint("DistanceX", 17, 3, 12, 3, 12.7))
sketch8.addConstraint(Sketcher.Constraint("DistanceX", 18, 3, 13, 3, 12.7))
sketch8.addConstraint(Sketcher.Constraint("DistanceX", 19, 3, 14, 3, 12.7))
sketch8.addConstraint(Sketcher.Constraint("DistanceX", 25, 3, 20, 3, 12.7))
sketch8.addConstraint(Sketcher.Constraint("DistanceX", 26, 3, 21, 3, 12.7))
sketch8.addConstraint(Sketcher.Constraint("DistanceX", 27, 3, 22, 3, 12.7))
sketch8.addConstraint(Sketcher.Constraint("DistanceX", 1, 3, 0, 3, 2.54))
sketch8.addConstraint(Sketcher.Constraint("DistanceX", 2, 3, 1, 3, 2.54))
sketch8.addConstraint(Sketcher.Constraint("DistanceX", 3, 3, 2, 3, 2.54))
sketch8.addConstraint(Sketcher.Constraint("DistanceX", 4, 3, 3, 3, 2.54))
sketch8.addConstraint(Sketcher.Constraint("DistanceX", 7, 3, 6, 3, 2.54))
sketch8.addConstraint(Sketcher.Constraint("DistanceX", 8, 3, 7, 3, 2.54))
sketch8.addConstraint(Sketcher.Constraint("DistanceX", 9, 3, 8, 3, 2.54))
sketch8.addConstraint(Sketcher.Constraint("DistanceX", 10, 3, 9, 3, 2.54))
sketch8.addConstraint(Sketcher.Constraint("DistanceX", 13, 3, 12, 3, 2.54))
sketch8.addConstraint(Sketcher.Constraint("DistanceX", 14, 3, 13, 3, 2.54))
sketch8.addConstraint(Sketcher.Constraint("DistanceX", 15, 3, 14, 3, 2.54))
sketch8.addConstraint(Sketcher.Constraint("DistanceX", 16, 3, 15, 3, 2.54))
sketch8.addConstraint(Sketcher.Constraint("DistanceX", 21, 3, 20, 3, 2.54))
sketch8.addConstraint(Sketcher.Constraint("DistanceX", 22, 3, 21, 3, 2.54))
sketch8.addConstraint(Sketcher.Constraint("DistanceX", 23, 3, 22, 3, 2.54))
sketch8.addConstraint(Sketcher.Constraint("DistanceX", 24, 3, 23, 3, 2.54))
sketch8.addConstraint(Sketcher.Constraint("DistanceX", 20, 3, 19, 3, 4.318))
sketch8.addConstraint(Sketcher.Constraint("DistanceX", -1, 1, 12, 3, 75.037059))
sketch8.addConstraint(Sketcher.Constraint("DistanceY", -1, 1, 12, 3, 53.119769))
sketch8.addConstraint(Sketcher.Constraint("DistanceX", -1, 1, 0, 3, 74.399505))
sketch8.addConstraint(Sketcher.Constraint("DistanceY", -1, 1, 0, 3, 4.775685))
sketch8.addConstraint(Sketcher.Constraint("DistanceX", -1, 1, 6, 3, 56.696852))
pad8 = doc.addObject("PartDesign::Pad", "Pad007")
body.addObject(pad8)
pad8.Profile = sketch8
pad8.Length = 3.3

sketch9 = doc.addObject("Sketcher::SketchObject", "Sketch008")
body.addObject(sketch9)
sketch9.AttachmentSupport = (doc.XY_Plane, [""])
sketch9.MapMode = "FlatFace"
sketch9.addGeometry(Part.Circle(App.Vector(17.1, 53.2, 0), App.Vector(0, 0, 1), 0.6), False)
sketch9.addGeometry(Part.Circle(App.Vector(19.6, 53.2, 0), App.Vector(0, 0, 1), 0.6), False)
sketch9.addGeometry(Part.Circle(App.Vector(22.1, 53.2, 0), App.Vector(0, 0, 1), 0.6), False)
sketch9.addGeometry(Part.Circle(App.Vector(22.1, 55.8, 0), App.Vector(0, 0, 1), 0.6), False)
sketch9.addGeometry(Part.Circle(App.Vector(19.6, 55.8, 0), App.Vector(0, 0, 1), 0.6), False)
sketch9.addGeometry(Part.Circle(App.Vector(17.1, 55.8, 0), App.Vector(0, 0, 1), 0.6), False)
sketch9.addConstraint(Sketcher.Constraint("Equal", 0, 1))
sketch9.addConstraint(Sketcher.Constraint("Equal", 1, 2))
sketch9.addConstraint(Sketcher.Constraint("Equal", 2, 3))
sketch9.addConstraint(Sketcher.Constraint("Equal", 3, 4))
sketch9.addConstraint(Sketcher.Constraint("Equal", 4, 5))
sketch9.addConstraint(Sketcher.Constraint("Horizontal", 0, 3, 1, 3))
sketch9.addConstraint(Sketcher.Constraint("Horizontal", 1, 3, 2, 3))
sketch9.addConstraint(Sketcher.Constraint("Horizontal", 3, 3, 4, 3))
sketch9.addConstraint(Sketcher.Constraint("Horizontal", 4, 3, 5, 3))
sketch9.addConstraint(Sketcher.Constraint("Vertical", 2, 3, 3, 3))
sketch9.addConstraint(Sketcher.Constraint("Vertical", 1, 3, 4, 3))
sketch9.addConstraint(Sketcher.Constraint("Vertical", 0, 3, 5, 3))
sketch9.addConstraint(Sketcher.Constraint("Diameter", 0, 1.2))
sketch9.addConstraint(Sketcher.Constraint("DistanceX", 0, 3, 1, 3, 2.54))
sketch9.addConstraint(Sketcher.Constraint("DistanceX", 1, 3, 2, 3, 2.54))
sketch9.addConstraint(Sketcher.Constraint("DistanceY", 2, 3, 3, 3, 2.54))
sketch9.addConstraint(Sketcher.Constraint("DistanceY", -1, 1, 0, 3, 53.220149))
sketch9.addConstraint(Sketcher.Constraint("DistanceX", -1, 1, 0, 3, 17.057745))
pad9 = doc.addObject("PartDesign::Pad", "Pad008")
body.addObject(pad9)
pad9.Profile = sketch9
pad9.Length = 10.3

sketch10 = doc.addObject("Sketcher::SketchObject", "Sketch009")
body.addObject(sketch10)
sketch10.AttachmentSupport = (doc.XY_Plane, [""])
sketch10.MapMode = "FlatFace"
add_polygon(sketch10, [(75, 38), (75, 26), (81, 26), (81, 38)])
sketch10.addConstraint(Sketcher.Constraint("Vertical", 0))
sketch10.addConstraint(Sketcher.Constraint("Horizontal", 1))
sketch10.addConstraint(Sketcher.Constraint("Vertical", 2))
sketch10.addConstraint(Sketcher.Constraint("Horizontal", 3))
sketch10.addConstraint(Sketcher.Constraint("DistanceY", 0, 2, 0, 1, 12.0))
sketch10.addConstraint(Sketcher.Constraint("DistanceX", 1, 1, 1, 2, 5.5))
sketch10.addConstraint(Sketcher.Constraint("DistanceX", -1, 1, 0, 2, 75.014132))
sketch10.addConstraint(Sketcher.Constraint("DistanceY", -1, 1, 0, 2, 25.677259))
pad10 = doc.addObject("PartDesign::Pad", "Pad009")
body.addObject(pad10)
pad10.Profile = sketch10
pad10.Length = 8.5

sketch11 = doc.addObject("Sketcher::SketchObject", "Sketch010")
body.addObject(sketch11)
sketch11.AttachmentSupport = (doc.XY_Plane, [""])
sketch11.MapMode = "FlatFace"
sketch11.AttachmentOffset = App.Placement(App.Vector(0, 0, 12.63), App.Rotation())
sketch11.addGeometry(Part.LineSegment(App.Vector(72, 25.2, 0), App.Vector(72, 37.7, 0)), False)
sketch11.addGeometry(Part.ArcOfCircle(Part.Circle(App.Vector(71, 37.7, 0), App.Vector(0, 0, 1), 1), math.radians(0), math.radians(90)), False)
sketch11.addGeometry(Part.LineSegment(App.Vector(71, 38.7, 0), App.Vector(7.5, 38.7, 0)), False)
sketch11.addGeometry(Part.ArcOfCircle(Part.Circle(App.Vector(7.5, 37.7, 0), App.Vector(0, 0, 1), 1), math.radians(90), math.radians(180)), False)
sketch11.addGeometry(Part.LineSegment(App.Vector(6.5, 37.7, 0), App.Vector(6.5, 25.2, 0)), False)
sketch11.addGeometry(Part.ArcOfCircle(Part.Circle(App.Vector(7.5, 25.2, 0), App.Vector(0, 0, 1), 1), math.radians(-180), math.radians(-90)), False)
sketch11.addGeometry(Part.LineSegment(App.Vector(7.5, 24.2, 0), App.Vector(71, 24.2, 0)), False)
sketch11.addGeometry(Part.ArcOfCircle(Part.Circle(App.Vector(71, 25.2, 0), App.Vector(0, 0, 1), 1), math.radians(-90), math.radians(0)), False)
sketch11.addConstraint(Sketcher.Constraint("Tangent", 0, 2, 1, 1))
sketch11.addConstraint(Sketcher.Constraint("Tangent", 1, 2, 2, 1))
sketch11.addConstraint(Sketcher.Constraint("Tangent", 2, 2, 3, 1))
sketch11.addConstraint(Sketcher.Constraint("Tangent", 3, 2, 4, 1))
sketch11.addConstraint(Sketcher.Constraint("Tangent", 4, 2, 5, 1))
sketch11.addConstraint(Sketcher.Constraint("Tangent", 5, 2, 6, 1))
sketch11.addConstraint(Sketcher.Constraint("Tangent", 6, 2, 7, 1))
sketch11.addConstraint(Sketcher.Constraint("Tangent", 7, 2, 0, 1))
sketch11.addConstraint(Sketcher.Constraint("Vertical", 0))
sketch11.addConstraint(Sketcher.Constraint("Horizontal", 2))
sketch11.addConstraint(Sketcher.Constraint("Vertical", 4))
sketch11.addConstraint(Sketcher.Constraint("Horizontal", 6))
sketch11.addConstraint(Sketcher.Constraint("Equal", 1, 3))
sketch11.addConstraint(Sketcher.Constraint("Equal", 3, 5))
sketch11.addConstraint(Sketcher.Constraint("Equal", 5, 7))
sketch11.addConstraint(Sketcher.Constraint("Radius", 1, 1.0))
sketch11.addConstraint(Sketcher.Constraint("DistanceX", 2, 2, 2, 1, 63.5))
sketch11.addConstraint(Sketcher.Constraint("DistanceY", 0, 1, 0, 2, 12.5))
sketch11.addConstraint(Sketcher.Constraint("DistanceX", -1, 1, 1, 3, 71.014132))
sketch11.addConstraint(Sketcher.Constraint("DistanceY", -1, 1, 1, 3, 37.677259))
pocket1 = doc.addObject("PartDesign::Pocket", "Pocket")
body.addObject(pocket1)
pocket1.Profile = sketch11
pocket1.Length = 1

doc.recompute()
